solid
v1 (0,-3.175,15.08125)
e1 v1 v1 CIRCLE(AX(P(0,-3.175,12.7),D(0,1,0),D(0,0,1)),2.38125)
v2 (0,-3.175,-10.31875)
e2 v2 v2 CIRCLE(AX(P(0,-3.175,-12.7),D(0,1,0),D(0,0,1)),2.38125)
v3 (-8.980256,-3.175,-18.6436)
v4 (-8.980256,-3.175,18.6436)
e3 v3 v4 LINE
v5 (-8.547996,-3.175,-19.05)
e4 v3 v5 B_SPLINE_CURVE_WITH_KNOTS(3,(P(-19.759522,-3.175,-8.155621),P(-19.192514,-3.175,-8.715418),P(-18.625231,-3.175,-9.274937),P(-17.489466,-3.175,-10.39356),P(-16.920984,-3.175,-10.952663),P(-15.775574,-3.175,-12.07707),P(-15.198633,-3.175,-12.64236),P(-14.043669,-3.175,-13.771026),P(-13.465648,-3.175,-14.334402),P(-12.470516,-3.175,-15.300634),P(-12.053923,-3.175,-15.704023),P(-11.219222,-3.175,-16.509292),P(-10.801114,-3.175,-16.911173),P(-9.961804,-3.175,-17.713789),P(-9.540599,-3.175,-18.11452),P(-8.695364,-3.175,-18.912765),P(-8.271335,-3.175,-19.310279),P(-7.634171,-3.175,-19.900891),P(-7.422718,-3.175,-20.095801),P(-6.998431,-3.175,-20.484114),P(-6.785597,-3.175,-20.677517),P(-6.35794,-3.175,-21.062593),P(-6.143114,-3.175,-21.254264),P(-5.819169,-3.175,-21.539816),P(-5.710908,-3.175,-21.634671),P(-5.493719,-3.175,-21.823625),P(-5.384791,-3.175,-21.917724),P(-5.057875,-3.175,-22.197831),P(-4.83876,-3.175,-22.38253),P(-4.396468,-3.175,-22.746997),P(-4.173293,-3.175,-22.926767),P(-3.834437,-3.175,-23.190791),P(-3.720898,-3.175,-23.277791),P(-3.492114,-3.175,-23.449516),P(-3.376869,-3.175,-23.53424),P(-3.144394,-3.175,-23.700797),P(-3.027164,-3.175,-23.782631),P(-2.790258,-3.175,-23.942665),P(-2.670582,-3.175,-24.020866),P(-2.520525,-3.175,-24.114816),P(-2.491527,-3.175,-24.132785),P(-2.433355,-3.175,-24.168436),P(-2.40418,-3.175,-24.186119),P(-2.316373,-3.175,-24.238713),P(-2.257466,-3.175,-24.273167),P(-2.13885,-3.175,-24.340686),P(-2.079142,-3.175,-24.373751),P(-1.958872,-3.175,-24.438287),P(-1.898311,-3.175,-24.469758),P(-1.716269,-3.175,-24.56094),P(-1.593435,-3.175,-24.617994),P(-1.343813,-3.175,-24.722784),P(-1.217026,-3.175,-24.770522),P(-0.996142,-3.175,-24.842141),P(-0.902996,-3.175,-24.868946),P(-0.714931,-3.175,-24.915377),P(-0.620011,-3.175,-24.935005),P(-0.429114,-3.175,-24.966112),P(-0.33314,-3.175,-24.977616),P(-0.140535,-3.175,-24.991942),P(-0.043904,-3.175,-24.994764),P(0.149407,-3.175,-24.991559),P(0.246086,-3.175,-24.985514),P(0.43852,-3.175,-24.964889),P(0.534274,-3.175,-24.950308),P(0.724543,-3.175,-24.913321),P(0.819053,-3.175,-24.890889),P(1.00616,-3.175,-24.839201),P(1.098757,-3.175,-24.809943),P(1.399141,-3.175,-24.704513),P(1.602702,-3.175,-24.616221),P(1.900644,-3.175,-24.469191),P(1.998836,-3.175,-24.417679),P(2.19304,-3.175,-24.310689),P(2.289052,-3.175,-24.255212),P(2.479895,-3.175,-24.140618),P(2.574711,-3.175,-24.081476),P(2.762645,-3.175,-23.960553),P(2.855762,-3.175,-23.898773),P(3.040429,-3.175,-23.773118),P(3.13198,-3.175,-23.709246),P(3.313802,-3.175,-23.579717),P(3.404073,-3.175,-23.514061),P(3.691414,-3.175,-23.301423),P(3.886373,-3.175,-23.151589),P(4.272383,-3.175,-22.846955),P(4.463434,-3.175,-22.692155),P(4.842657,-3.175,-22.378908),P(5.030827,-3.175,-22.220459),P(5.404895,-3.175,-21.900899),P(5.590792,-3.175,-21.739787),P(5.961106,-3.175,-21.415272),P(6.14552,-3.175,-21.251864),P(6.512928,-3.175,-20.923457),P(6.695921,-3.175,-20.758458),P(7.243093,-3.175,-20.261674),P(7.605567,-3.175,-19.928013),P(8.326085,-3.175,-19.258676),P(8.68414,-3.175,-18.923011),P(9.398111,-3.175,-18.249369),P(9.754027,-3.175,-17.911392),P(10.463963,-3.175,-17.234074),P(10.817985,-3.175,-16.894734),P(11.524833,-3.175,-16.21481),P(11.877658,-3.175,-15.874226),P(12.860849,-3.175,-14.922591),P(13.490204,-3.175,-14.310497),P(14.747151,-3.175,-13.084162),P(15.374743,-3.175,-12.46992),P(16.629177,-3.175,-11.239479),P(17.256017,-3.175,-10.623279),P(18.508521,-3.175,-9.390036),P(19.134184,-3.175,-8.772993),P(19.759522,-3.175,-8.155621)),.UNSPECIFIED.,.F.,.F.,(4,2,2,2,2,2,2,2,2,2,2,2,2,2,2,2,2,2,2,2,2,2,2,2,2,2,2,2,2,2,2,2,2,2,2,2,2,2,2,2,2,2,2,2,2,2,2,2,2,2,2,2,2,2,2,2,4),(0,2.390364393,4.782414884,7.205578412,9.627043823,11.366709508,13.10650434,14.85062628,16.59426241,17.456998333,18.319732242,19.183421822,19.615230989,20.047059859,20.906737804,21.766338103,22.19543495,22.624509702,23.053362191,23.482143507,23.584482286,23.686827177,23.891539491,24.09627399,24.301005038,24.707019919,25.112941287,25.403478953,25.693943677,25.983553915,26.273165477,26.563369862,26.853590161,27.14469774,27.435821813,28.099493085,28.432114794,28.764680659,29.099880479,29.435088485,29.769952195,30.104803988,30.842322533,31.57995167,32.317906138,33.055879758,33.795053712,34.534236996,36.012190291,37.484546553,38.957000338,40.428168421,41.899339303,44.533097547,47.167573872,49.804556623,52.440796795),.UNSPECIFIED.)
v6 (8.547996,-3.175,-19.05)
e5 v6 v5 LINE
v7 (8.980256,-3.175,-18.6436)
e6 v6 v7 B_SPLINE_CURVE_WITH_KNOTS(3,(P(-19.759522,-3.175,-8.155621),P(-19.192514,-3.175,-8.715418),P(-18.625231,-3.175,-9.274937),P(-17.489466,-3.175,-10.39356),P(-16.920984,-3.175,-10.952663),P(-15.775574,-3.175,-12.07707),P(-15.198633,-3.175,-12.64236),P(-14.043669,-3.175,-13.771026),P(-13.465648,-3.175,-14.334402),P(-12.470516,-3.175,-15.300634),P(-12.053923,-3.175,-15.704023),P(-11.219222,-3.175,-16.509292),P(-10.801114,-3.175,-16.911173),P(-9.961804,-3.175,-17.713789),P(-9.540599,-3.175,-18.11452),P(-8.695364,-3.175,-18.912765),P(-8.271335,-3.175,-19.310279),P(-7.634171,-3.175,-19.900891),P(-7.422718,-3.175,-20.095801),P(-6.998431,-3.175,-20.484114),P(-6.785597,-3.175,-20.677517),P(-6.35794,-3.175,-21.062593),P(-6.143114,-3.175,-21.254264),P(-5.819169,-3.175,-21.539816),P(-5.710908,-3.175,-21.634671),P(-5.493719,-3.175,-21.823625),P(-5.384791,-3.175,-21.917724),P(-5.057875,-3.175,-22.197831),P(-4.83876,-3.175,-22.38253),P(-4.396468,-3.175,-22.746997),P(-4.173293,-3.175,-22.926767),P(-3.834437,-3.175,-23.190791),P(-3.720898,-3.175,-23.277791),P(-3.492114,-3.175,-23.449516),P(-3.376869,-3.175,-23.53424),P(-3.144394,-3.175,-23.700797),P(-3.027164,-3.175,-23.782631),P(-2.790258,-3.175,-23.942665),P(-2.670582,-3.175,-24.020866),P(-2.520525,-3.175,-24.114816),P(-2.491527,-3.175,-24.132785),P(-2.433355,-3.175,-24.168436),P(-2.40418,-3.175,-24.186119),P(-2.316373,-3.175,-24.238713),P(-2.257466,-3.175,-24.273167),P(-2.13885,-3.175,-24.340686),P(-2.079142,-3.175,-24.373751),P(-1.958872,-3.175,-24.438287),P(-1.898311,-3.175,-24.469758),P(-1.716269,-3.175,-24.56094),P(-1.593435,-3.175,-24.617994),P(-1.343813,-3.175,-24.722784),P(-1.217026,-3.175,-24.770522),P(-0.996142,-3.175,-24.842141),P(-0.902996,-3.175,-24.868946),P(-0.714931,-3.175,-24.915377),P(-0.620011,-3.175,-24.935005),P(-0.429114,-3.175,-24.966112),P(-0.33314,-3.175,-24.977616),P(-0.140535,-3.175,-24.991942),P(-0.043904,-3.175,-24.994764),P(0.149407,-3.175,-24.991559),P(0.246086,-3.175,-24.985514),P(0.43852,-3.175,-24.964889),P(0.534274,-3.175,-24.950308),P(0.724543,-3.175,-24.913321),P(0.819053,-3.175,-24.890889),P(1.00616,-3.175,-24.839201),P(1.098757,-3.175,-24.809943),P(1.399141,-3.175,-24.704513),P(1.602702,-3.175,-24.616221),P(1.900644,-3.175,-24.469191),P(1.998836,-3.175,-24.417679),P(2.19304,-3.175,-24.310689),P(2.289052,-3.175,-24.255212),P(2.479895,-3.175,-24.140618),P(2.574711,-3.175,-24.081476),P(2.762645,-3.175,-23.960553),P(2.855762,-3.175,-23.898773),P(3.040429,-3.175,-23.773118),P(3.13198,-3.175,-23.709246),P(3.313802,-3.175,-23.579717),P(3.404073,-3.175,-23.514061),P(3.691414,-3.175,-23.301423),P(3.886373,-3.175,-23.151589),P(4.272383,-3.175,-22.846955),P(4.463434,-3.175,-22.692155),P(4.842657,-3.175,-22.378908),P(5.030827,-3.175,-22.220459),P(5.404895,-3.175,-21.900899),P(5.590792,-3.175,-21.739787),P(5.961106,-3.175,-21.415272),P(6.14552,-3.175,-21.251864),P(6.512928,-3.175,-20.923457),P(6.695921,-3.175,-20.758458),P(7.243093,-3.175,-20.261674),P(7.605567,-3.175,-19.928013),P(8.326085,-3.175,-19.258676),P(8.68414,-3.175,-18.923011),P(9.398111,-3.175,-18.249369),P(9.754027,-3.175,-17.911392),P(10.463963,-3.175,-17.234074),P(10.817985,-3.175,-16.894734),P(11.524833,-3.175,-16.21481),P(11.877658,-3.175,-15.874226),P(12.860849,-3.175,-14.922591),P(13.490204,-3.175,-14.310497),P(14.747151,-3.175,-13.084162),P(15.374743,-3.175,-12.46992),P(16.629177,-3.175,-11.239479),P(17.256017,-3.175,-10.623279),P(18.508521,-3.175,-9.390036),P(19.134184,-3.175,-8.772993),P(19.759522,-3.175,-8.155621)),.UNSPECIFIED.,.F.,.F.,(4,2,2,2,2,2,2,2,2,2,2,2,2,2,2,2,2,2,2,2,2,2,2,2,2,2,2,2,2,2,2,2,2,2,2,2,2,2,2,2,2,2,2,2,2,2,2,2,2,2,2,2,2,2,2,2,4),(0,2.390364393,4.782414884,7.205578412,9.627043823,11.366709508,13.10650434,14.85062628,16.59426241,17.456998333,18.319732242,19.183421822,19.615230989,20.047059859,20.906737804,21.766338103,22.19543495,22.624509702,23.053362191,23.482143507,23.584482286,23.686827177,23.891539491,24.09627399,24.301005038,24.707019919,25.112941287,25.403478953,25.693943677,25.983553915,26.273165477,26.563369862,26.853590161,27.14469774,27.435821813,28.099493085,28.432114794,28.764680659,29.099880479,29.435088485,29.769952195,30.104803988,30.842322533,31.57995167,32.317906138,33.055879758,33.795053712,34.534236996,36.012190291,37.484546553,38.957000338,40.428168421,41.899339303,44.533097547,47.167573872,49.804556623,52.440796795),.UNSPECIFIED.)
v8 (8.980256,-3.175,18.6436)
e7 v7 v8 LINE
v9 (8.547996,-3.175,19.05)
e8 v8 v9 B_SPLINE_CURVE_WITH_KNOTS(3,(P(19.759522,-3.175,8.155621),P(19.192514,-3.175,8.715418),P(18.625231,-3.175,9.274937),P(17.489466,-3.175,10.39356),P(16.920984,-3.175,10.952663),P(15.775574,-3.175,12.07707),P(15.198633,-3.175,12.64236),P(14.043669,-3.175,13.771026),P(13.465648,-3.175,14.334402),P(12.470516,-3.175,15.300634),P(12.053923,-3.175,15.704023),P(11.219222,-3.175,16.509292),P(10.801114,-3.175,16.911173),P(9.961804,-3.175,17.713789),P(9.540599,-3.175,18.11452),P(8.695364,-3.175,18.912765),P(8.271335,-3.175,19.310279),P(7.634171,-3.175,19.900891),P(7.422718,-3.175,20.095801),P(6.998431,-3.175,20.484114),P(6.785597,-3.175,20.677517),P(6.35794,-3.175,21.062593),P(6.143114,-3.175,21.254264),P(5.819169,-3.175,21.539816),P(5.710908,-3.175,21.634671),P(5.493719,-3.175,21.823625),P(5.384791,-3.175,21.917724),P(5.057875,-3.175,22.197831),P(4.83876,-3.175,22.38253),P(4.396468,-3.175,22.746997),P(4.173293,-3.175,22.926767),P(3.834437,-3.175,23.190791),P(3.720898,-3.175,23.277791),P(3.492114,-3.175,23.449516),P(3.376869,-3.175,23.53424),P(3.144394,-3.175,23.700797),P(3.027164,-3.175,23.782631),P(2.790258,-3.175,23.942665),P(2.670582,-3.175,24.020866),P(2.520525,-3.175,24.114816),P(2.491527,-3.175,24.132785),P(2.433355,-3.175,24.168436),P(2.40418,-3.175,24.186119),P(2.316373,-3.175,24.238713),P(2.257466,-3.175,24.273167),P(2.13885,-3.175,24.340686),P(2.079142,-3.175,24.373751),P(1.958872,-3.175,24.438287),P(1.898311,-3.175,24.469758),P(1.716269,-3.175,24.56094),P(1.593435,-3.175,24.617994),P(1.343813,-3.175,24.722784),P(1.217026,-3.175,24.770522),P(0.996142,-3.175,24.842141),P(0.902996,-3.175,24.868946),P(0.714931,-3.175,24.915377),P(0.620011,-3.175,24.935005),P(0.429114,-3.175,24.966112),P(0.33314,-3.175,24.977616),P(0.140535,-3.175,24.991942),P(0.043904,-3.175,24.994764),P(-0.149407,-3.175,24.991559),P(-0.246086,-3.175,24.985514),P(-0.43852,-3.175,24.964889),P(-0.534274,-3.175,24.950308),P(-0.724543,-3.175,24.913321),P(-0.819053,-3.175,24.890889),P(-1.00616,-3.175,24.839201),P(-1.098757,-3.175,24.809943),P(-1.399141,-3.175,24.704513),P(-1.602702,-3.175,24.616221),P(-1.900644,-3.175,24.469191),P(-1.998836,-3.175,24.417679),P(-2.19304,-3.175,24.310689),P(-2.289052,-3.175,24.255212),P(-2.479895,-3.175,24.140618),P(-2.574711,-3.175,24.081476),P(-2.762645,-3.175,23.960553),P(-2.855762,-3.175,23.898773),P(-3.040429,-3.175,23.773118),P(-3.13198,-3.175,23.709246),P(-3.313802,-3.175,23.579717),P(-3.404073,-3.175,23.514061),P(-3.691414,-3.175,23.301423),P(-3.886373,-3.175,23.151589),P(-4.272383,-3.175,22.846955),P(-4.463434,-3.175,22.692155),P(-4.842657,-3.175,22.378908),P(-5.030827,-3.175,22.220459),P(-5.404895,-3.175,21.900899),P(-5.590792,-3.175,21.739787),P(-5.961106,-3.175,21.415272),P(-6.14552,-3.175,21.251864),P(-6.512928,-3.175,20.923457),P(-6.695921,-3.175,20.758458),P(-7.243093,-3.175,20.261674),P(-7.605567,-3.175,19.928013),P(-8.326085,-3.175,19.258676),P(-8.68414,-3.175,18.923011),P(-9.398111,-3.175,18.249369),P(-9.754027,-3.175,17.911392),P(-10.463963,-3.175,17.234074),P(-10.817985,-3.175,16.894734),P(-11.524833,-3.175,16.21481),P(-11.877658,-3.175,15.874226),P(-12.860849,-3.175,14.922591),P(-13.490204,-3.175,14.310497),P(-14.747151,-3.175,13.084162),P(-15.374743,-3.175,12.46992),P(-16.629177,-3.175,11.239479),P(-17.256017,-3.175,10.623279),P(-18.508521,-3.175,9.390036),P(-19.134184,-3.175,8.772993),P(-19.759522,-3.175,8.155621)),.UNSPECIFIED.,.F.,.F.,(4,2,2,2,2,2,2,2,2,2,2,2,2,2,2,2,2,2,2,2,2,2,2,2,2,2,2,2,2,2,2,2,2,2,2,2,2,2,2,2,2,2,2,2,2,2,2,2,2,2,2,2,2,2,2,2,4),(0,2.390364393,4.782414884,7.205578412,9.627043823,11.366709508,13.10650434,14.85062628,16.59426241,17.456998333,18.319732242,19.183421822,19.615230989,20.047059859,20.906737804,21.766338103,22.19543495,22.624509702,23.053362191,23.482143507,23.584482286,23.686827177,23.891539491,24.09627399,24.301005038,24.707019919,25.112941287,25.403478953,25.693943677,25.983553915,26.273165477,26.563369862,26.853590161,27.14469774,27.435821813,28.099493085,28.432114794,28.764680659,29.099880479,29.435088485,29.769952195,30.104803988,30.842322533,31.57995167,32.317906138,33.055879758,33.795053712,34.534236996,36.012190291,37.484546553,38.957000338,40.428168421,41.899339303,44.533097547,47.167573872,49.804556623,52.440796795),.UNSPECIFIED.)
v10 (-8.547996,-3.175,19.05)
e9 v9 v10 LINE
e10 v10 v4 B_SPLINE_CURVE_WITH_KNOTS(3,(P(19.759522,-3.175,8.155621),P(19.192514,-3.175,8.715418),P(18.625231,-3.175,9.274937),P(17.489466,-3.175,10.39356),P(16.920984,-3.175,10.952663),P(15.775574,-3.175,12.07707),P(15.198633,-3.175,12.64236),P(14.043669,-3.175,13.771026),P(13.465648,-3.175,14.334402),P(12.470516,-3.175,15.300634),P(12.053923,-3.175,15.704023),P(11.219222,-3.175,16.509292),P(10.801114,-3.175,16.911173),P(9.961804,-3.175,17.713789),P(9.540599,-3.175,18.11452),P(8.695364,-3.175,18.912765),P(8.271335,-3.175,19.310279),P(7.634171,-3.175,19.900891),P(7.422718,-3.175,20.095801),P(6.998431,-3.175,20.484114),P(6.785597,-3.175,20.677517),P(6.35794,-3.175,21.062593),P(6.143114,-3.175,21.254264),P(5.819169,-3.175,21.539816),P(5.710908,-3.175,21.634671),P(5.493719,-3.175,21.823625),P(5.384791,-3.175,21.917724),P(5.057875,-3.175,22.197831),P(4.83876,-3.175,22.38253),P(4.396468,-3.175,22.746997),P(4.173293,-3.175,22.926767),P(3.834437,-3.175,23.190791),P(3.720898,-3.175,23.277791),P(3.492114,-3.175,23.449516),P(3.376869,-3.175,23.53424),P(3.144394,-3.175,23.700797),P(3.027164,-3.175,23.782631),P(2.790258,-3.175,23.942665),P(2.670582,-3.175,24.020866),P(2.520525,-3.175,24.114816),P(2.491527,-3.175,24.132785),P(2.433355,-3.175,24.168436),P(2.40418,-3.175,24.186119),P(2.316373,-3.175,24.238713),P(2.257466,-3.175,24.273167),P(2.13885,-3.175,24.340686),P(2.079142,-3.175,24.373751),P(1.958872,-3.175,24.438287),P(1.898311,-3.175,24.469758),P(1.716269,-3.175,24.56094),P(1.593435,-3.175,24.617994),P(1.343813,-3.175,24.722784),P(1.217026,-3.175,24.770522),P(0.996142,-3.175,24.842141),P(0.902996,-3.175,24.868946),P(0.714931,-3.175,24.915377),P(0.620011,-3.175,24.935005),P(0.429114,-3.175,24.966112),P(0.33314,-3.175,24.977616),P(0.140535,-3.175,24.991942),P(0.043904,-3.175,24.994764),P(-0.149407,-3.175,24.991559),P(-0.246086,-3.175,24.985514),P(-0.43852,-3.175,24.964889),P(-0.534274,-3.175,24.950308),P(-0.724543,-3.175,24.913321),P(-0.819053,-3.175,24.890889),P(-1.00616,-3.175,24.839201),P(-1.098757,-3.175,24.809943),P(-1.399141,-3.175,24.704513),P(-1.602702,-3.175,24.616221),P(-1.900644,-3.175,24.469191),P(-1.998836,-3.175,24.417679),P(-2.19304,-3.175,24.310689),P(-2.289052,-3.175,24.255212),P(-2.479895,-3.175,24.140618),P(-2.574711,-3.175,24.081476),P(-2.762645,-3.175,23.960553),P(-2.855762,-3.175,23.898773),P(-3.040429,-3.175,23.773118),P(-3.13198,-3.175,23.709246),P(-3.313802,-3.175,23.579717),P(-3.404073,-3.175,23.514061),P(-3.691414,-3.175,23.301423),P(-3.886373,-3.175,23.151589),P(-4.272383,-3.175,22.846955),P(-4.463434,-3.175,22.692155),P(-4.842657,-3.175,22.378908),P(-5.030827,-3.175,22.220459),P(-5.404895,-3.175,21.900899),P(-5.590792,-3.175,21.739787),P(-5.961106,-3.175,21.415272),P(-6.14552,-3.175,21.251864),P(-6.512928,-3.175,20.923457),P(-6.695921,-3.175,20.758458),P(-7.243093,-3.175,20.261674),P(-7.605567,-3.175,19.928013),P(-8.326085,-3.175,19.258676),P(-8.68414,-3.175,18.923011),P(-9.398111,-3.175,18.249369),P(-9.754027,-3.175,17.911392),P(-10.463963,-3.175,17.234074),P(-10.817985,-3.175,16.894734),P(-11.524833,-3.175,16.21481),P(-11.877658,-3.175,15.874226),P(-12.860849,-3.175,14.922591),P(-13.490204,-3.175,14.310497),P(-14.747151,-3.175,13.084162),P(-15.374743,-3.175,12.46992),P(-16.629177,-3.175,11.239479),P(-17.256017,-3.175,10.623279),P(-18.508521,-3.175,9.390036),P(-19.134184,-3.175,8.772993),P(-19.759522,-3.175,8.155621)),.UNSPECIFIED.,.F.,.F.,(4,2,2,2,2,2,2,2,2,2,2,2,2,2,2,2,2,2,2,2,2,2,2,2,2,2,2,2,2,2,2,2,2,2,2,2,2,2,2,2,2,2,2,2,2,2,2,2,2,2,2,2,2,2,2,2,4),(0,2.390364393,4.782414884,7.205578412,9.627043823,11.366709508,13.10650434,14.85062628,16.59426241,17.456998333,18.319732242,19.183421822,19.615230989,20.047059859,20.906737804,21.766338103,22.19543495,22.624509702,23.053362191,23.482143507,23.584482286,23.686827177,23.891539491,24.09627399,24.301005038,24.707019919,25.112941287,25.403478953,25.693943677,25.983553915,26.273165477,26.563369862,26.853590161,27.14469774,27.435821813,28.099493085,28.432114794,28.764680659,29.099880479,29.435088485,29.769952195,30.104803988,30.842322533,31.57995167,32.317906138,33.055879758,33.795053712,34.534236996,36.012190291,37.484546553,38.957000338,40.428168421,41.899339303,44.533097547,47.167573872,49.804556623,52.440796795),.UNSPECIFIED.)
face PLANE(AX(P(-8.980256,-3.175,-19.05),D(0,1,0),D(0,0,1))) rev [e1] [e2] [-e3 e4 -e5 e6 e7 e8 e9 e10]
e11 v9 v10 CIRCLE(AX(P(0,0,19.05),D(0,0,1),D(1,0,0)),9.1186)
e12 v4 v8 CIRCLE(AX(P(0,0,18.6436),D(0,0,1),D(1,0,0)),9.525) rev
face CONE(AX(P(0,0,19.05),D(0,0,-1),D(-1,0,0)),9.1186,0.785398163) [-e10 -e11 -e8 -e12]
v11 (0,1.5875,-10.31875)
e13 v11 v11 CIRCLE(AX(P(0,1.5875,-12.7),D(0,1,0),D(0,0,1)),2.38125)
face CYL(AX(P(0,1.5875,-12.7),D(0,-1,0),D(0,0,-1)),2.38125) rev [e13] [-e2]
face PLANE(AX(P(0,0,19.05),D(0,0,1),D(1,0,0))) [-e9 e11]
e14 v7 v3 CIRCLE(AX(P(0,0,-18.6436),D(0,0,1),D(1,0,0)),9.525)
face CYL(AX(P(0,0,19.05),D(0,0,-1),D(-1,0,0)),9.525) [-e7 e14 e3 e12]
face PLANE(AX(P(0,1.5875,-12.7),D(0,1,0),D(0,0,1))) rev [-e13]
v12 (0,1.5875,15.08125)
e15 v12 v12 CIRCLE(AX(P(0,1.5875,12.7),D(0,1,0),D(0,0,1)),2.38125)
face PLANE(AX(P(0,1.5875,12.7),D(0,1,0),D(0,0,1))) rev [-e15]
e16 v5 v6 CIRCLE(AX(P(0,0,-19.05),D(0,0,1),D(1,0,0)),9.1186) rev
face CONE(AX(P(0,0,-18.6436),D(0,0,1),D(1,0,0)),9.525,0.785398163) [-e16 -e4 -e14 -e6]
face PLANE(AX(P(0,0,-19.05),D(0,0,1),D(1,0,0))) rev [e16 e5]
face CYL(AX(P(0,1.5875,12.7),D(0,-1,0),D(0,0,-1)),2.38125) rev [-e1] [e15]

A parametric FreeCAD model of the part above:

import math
import FreeCAD as App
import Part
import Sketcher
Q = App.Units.Quantity


def edges_at(feature, points):
    """Names of the edges that pass closest to the given points."""
    edges = feature.Shape.Edges
    near = lambda p: min(range(len(edges)), key=lambda i: edges[i].distToShape(Part.Vertex(*p))[0])
    return sorted({f"Edge{near(p) + 1}" for p in points})

doc = App.newDocument("Part")
body = doc.addObject("PartDesign::Body", "Body")

# Sketch on XY plane
sketch1 = body.newObject("Sketcher::SketchObject", "Sketch")
sketch1.AttachmentSupport = (doc.getObject("XY_Plane"), [""])
sketch1.MapMode = "FlatFace"
sketch1.addGeometry(Part.Circle(App.Vector(0, 0, 0), App.Vector(0, 0, 1), 10), False)
sketch1.addConstraint(Sketcher.Constraint("Coincident", 0, 3, -1, 1))
sketch1.addConstraint(Sketcher.Constraint("Diameter", 0, Q("0.75 in")))
pad1 = body.newObject("PartDesign::Pad", "Pad")
pad1.Profile = sketch1
pad1.Length = Q("1.5 in")
pad1.Midplane = True
doc.recompute()

chamfer = body.newObject("PartDesign::Chamfer", "Chamfer")
chamfer.Base = (pad1, edges_at(pad1, [(-9.525, 0, -19.05), (-9.525, 0, 19.05)]))
chamfer.Size = Q("0.016 in")

# Sketch on XY plane
sketch2 = body.newObject("Sketcher::SketchObject", "Sketch001")
sketch2.AttachmentSupport = (doc.getObject("XY_Plane"), [""])
sketch2.MapMode = "FlatFace"
sketch2.addGeometry(Part.LineSegment(App.Vector(9, -3, 0), App.Vector(-9, -3, 0)), False)
sketch2.addGeometry(Part.ArcOfCircle(Part.Circle(App.Vector(0, 0, 0), App.Vector(0, 0, 1), 10), math.radians(-161), math.radians(-19)), False)
sketch2.addConstraint(Sketcher.Constraint("Coincident", 0, 1, 1, 2))
sketch2.addConstraint(Sketcher.Constraint("Coincident", 1, 1, 0, 2))
sketch2.addConstraint(Sketcher.Constraint("Horizontal", 0))
sketch2.addConstraint(Sketcher.Constraint("Coincident", 1, 3, -1, 1))
sketch2.addConstraint(Sketcher.Constraint("Radius", 1, Q("0.375 in")))
sketch2.addConstraint(Sketcher.Constraint("DistanceY", 0, 1, -1, 1, Q("0.125 in")))
pocket1 = body.newObject("PartDesign::Pocket", "Pocket")
pocket1.Profile = sketch2
pocket1.Type = "ThroughAll"
pocket1.Midplane = True

# Sketch on XZ plane
sketch3 = body.newObject("Sketcher::SketchObject", "Sketch002")
sketch3.AttachmentSupport = (doc.getObject("XZ_Plane"), [""])
sketch3.MapMode = "FlatFace"
sketch3.AttachmentOffset = App.Placement(App.Vector(0, 0, 0.125 * 25.4), App.Rotation())
sketch3.addGeometry(Part.Circle(App.Vector(0, 12.7, 0), App.Vector(0, 0, 1), 2.4), False)
sketch3.addGeometry(Part.Circle(App.Vector(0, -12.7, 0), App.Vector(0, 0, 1), 2.4), False)
sketch3.addConstraint(Sketcher.Constraint("Equal", 0, 1))
sketch3.addConstraint(Sketcher.Constraint("Symmetric", 0, 3, 1, 3, -1, 1))
sketch3.addConstraint(Sketcher.Constraint("PointOnObject", 0, 3, -2))
sketch3.addConstraint(Sketcher.Constraint("Diameter", 0, Q("0.1875 in")))
sketch3.addConstraint(Sketcher.Constraint("DistanceY", 1, 3, 0, 3, Q("1 in")))
pocket2 = body.newObject("PartDesign::Pocket", "Pocket001")
pocket2.Profile = sketch3
pocket2.Length = Q("0.1875 in")

doc.recompute()
